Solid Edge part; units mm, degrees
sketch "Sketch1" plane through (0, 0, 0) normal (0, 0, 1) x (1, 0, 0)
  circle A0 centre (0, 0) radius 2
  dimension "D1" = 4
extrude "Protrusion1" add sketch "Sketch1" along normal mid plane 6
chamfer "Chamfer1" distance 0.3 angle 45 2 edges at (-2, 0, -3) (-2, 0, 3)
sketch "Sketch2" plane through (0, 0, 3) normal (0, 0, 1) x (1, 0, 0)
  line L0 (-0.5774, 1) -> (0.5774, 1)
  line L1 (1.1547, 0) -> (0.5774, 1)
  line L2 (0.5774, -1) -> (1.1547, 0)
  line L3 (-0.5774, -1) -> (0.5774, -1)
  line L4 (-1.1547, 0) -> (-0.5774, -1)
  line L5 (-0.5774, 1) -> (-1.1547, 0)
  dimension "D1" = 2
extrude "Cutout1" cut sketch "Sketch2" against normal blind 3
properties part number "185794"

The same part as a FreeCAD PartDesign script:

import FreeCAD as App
import Part
import Sketcher


def edges_at(feature, points):
    """Names of the edges that pass closest to the given points."""
    edges = feature.Shape.Edges
    near = lambda p: min(range(len(edges)), key=lambda i: edges[i].distToShape(Part.Vertex(*p))[0])
    return sorted({f"Edge{near(p) + 1}" for p in points})


def add_polygon(sketch, points):
    """Adds a closed chain of lines whose ends are joined by coincident constraints."""
    first, n = sketch.GeometryCount, len(points)
    for a, b in zip(points, points[1:] + points[:1]):
        sketch.addGeometry(Part.LineSegment(App.Vector(*a, 0), App.Vector(*b, 0)), False)
    for i in range(n):
        sketch.addConstraint(Sketcher.Constraint("Coincident", first + i, 2, first + (i + 1) % n, 1))

doc = App.newDocument("Part")
params = doc.addObject("Spreadsheet::Sheet", "Params")
for row, (alias, value) in enumerate([
    ("sketch1_diameter", "4 mm"),
    ("pad1_length", "6 mm"),
    ("chamfer_size", "0.3 mm"),
    ("pocket1_length", "3 mm"),
], start=1):
    params.set(f"A{row}", alias)
    params.set(f"B{row}", "=" + value)
    params.setAlias(f"B{row}", alias)

body = doc.addObject("PartDesign::Body", "Body")

sketch1 = body.newObject("Sketcher::SketchObject", "Sketch")
sketch1.AttachmentSupport = (doc.getObject("XY_Plane"), [""])
sketch1.MapMode = "FlatFace"
sketch1.addGeometry(Part.Circle(App.Vector(0, 0, 0), App.Vector(0, 0, 1), 2), False)
sketch1.addConstraint([
    Sketcher.Constraint("Coincident", 0, 3, -1, 1),
    Sketcher.Constraint("Diameter", 0, 4.0),
])
sketch1.setExpression("Constraints[1]", "Params.sketch1_diameter")
pad1 = body.newObject("PartDesign::Pad", "Pad")
pad1.Profile = sketch1
pad1.setExpression("Length", "Params.pad1_length")
pad1.Midplane = True
doc.recompute()

chamfer = body.newObject("PartDesign::Chamfer", "Chamfer")
chamfer.Base = (pad1, edges_at(pad1, [(-2, 0, -3), (-2, 0, 3)]))
chamfer.setExpression("Size", "Params.chamfer_size")

sketch2 = body.newObject("Sketcher::SketchObject", "Sketch001")
sketch2.AttachmentSupport = (doc.getObject("XY_Plane"), [""])
sketch2.MapMode = "FlatFace"
sketch2.AttachmentOffset = App.Placement(App.Vector(0, 0, 3), App.Rotation())
add_polygon(sketch2, [(0.6, 1), (-0.6, 1), (-1.2, 0), (-0.6, -1), (0.6, -1), (1.2, 0)])
sketch2.addConstraint([
    Sketcher.Constraint("Horizontal", 0),
    Sketcher.Constraint("Horizontal", 3),
    Sketcher.Constraint("Symmetric", 0, 2, 3, 2, -1, 1),
    Sketcher.Constraint("Symmetric", 1, 2, 4, 2, -1, 1),
    Sketcher.Constraint("PointOnObject", 1, 2, -1),
    Sketcher.Constraint("Parallel", 2, 5),
    Sketcher.Constraint("Vertical", 0, 2, 2, 2),
    Sketcher.Constraint("DistanceY", -1, 1, 0, 2, 1.0),
    Sketcher.Constraint("DistanceX", 0, 2, 0, 1, 1.1548),
    Sketcher.Constraint("DistanceX", 1, 2, 3, 2, 1.732),
])
pocket1 = body.newObject("PartDesign::Pocket", "Pocket")
pocket1.Profile = sketch2
pocket1.setExpression("Length", "Params.pocket1_length")

doc.recompute()
